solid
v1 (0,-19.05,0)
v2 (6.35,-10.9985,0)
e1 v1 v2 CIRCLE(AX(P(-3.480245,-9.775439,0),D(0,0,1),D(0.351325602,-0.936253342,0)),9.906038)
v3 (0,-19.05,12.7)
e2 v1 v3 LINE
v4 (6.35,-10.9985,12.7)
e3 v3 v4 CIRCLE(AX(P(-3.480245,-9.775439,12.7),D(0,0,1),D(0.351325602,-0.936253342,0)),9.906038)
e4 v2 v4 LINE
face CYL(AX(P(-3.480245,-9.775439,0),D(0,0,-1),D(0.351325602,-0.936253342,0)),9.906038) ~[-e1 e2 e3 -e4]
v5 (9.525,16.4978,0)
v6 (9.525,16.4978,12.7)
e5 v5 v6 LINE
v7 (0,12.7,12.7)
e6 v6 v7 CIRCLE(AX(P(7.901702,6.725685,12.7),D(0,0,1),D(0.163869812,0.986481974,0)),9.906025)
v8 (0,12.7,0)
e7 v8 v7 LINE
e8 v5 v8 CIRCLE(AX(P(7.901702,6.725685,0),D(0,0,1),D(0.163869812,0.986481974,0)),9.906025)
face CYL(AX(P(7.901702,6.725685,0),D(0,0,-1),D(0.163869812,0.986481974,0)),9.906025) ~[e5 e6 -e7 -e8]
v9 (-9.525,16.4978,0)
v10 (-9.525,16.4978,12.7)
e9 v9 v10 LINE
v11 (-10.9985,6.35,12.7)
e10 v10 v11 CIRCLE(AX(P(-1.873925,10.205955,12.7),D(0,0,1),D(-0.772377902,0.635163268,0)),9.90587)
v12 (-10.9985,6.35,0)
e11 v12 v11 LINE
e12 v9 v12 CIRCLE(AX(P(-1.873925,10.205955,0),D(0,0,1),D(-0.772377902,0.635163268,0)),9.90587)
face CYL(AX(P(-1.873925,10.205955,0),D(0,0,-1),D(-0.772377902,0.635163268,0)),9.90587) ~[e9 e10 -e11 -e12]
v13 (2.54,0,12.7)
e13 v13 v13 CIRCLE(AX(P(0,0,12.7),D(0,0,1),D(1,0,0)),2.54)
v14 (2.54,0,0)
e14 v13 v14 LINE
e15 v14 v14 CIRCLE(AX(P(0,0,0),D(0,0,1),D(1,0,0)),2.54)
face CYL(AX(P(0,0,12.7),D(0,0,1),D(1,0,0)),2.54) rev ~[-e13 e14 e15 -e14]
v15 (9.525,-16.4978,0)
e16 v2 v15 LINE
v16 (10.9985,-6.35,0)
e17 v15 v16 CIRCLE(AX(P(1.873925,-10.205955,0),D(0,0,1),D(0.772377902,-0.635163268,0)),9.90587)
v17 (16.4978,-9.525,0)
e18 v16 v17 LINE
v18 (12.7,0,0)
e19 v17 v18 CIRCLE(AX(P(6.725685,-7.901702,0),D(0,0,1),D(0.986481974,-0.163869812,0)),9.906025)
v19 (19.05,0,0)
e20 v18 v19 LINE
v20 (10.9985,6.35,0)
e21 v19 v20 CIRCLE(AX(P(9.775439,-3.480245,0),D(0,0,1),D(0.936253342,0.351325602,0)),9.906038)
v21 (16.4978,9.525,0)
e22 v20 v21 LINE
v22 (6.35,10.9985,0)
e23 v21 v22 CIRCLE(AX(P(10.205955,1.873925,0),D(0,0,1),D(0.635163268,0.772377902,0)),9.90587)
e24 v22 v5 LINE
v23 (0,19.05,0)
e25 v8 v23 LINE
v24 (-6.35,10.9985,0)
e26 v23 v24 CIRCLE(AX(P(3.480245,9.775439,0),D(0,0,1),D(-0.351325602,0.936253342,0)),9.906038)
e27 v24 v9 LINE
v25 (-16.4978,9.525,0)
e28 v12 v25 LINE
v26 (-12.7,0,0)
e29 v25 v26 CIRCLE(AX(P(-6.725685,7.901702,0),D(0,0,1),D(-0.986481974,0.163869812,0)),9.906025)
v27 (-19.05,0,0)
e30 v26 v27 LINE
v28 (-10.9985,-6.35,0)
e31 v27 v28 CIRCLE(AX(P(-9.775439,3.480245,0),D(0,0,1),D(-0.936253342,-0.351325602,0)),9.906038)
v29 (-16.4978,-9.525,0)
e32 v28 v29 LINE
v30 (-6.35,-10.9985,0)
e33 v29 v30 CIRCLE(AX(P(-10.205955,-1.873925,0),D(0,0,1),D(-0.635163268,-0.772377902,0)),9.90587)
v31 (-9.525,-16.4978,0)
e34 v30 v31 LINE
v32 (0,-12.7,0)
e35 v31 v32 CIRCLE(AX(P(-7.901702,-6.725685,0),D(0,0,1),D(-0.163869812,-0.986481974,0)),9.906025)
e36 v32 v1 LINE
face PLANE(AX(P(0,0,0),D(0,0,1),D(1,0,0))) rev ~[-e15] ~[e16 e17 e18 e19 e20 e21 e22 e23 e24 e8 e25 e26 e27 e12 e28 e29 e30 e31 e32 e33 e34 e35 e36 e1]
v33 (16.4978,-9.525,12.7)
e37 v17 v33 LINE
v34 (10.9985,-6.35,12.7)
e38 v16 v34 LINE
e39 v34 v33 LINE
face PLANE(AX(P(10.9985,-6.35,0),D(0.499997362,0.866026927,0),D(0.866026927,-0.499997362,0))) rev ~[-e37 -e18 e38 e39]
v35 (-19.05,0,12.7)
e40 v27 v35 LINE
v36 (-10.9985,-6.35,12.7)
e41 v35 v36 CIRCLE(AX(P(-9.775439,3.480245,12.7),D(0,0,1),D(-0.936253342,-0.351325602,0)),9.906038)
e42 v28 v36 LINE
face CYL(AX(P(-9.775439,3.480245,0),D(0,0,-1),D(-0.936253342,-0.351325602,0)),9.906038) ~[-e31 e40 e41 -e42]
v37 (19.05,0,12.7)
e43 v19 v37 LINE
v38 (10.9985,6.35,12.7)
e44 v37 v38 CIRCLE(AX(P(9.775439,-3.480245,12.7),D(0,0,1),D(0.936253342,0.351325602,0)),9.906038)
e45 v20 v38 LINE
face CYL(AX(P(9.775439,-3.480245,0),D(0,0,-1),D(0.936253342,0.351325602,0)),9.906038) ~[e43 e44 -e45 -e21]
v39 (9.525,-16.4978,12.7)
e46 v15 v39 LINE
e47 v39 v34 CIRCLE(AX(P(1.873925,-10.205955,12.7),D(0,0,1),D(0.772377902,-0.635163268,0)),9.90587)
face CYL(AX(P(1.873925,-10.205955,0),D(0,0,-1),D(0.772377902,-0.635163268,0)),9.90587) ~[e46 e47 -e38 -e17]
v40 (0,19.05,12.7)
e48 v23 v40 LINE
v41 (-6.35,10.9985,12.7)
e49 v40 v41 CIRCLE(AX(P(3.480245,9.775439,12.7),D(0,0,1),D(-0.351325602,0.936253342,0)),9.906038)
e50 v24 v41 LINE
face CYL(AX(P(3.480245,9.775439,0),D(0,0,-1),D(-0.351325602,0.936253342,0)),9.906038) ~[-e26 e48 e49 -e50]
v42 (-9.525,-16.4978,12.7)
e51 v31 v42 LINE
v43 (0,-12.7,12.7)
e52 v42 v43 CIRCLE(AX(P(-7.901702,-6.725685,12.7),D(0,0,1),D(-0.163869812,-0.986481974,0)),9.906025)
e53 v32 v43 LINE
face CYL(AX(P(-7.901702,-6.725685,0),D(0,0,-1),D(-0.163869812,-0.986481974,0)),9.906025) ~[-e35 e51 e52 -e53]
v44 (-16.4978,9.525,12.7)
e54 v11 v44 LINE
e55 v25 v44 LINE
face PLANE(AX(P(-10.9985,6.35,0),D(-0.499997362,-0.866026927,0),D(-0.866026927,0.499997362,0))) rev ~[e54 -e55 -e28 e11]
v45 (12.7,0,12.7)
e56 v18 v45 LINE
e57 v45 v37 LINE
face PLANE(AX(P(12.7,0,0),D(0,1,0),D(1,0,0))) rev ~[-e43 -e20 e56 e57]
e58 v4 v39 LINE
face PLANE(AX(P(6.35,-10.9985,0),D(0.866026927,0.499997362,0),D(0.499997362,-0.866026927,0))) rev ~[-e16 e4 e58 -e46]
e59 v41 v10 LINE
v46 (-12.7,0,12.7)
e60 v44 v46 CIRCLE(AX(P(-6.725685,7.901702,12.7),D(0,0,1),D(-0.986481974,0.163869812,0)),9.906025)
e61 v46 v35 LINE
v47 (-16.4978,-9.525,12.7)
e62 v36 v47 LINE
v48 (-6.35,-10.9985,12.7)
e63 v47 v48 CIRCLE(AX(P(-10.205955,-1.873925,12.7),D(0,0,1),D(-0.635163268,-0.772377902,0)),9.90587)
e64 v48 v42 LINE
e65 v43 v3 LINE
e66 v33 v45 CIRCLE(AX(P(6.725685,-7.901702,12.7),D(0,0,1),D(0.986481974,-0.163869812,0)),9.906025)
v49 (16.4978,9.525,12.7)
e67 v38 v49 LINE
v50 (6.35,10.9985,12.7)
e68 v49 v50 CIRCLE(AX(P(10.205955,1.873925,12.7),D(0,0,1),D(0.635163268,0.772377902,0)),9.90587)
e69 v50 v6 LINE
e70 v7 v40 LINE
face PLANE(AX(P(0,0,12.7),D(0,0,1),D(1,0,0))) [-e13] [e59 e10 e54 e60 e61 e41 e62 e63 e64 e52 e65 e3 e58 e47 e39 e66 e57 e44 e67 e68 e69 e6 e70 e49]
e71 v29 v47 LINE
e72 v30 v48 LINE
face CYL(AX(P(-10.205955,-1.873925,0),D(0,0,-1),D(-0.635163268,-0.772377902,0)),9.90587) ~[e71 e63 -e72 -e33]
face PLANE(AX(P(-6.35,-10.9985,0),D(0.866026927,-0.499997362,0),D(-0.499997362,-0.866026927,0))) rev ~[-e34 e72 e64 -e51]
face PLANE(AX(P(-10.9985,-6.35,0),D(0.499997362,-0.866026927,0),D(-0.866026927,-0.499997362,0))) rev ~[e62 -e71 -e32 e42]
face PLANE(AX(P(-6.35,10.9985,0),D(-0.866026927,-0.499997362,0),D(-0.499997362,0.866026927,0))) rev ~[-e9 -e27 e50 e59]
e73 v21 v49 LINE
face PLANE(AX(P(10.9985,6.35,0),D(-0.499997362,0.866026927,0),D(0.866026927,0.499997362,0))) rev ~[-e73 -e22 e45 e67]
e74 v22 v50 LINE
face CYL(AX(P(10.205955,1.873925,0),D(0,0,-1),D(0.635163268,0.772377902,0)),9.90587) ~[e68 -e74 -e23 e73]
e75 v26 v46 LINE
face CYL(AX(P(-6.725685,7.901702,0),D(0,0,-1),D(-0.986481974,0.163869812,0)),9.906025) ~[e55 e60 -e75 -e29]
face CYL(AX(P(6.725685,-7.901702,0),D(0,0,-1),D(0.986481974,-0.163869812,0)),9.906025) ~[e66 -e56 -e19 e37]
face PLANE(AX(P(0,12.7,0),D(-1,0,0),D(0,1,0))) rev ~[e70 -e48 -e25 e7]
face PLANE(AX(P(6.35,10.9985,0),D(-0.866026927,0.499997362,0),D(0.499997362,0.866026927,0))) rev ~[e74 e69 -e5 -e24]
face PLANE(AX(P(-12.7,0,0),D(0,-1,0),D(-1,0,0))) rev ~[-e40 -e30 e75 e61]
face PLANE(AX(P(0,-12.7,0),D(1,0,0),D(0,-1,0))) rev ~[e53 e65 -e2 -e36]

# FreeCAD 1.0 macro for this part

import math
import FreeCAD as App
import Part
import Sketcher
Q = App.Units.Quantity

doc = App.newDocument("Part")
body = doc.addObject("PartDesign::Body", "Body")

# Sketch on XY plane
sketch1 = body.newObject("Sketcher::SketchObject", "Sketch")
sketch1.AttachmentSupport = (doc.getObject("XY_Plane"), [""])
sketch1.MapMode = "FlatFace"
sketch1.addGeometry([
    Part.ArcOfCircle(Part.Circle(App.Vector(10.2059, 1.8738, 0), App.Vector(0, 0, 1), 9.906002), math.radians(50.568117), math.radians(112.907863)),  # 0
    Part.LineSegment(App.Vector(6.35, 10.9985, 0), App.Vector(9.525, 16.4978, 0)),  # 1
    Part.ArcOfCircle(Part.Circle(App.Vector(7.9017, 6.7257, 0), App.Vector(0, 0, 1), 9.90601), math.radians(80.568391), math.radians(142.907883)),  # 2
    Part.LineSegment(App.Vector(0, 12.7, 0), App.Vector(0, 19.05, 0)),  # 3
    Part.ArcOfCircle(Part.Circle(App.Vector(3.4802, 9.7755, 0), App.Vector(0, 0, 1), 9.905965), math.radians(110.568298), math.radians(172.908128)),  # 4
    Part.LineSegment(App.Vector(-6.35, 10.9985, 0), App.Vector(-9.525, 16.4978, 0)),  # 5
    Part.ArcOfCircle(Part.Circle(App.Vector(-1.8738, 10.2059, 0), App.Vector(0, 0, 1), 9.906002), math.radians(140.568117), math.radians(202.907863)),  # 6
    Part.LineSegment(App.Vector(-10.9985, 6.35, 0), App.Vector(-16.4978, 9.525, 0)),  # 7
    Part.ArcOfCircle(Part.Circle(App.Vector(-6.7257, 7.9017, 0), App.Vector(0, 0, 1), 9.90601), math.radians(170.568391), math.radians(232.907883)),  # 8
    Part.LineSegment(App.Vector(-12.7, 0, 0), App.Vector(-19.05, 0, 0)),  # 9
    Part.ArcOfCircle(Part.Circle(App.Vector(-9.7755, 3.4802, 0), App.Vector(0, 0, 1), 9.905965), math.radians(-159.431702), math.radians(-97.091872)),  # 10
    Part.LineSegment(App.Vector(-10.9985, -6.35, 0), App.Vector(-16.4978, -9.525, 0)),  # 11
    Part.ArcOfCircle(Part.Circle(App.Vector(-10.2059, -1.8738, 0), App.Vector(0, 0, 1), 9.906002), math.radians(-129.431883), math.radians(-67.092137)),  # 12
    Part.LineSegment(App.Vector(-6.35, -10.9985, 0), App.Vector(-9.525, -16.4978, 0)),  # 13
    Part.ArcOfCircle(Part.Circle(App.Vector(-7.9017, -6.7257, 0), App.Vector(0, 0, 1), 9.90601), math.radians(-99.431609), math.radians(-37.092117)),  # 14
    Part.LineSegment(App.Vector(0, -12.7, 0), App.Vector(0, -19.05, 0)),  # 15
    Part.ArcOfCircle(Part.Circle(App.Vector(-3.4802, -9.7755, 0), App.Vector(0, 0, 1), 9.905965), math.radians(-69.431702), math.radians(-7.091872)),  # 16
    Part.LineSegment(App.Vector(6.35, -10.9985, 0), App.Vector(9.525, -16.4978, 0)),  # 17
    Part.ArcOfCircle(Part.Circle(App.Vector(1.8738, -10.2059, 0), App.Vector(0, 0, 1), 9.906002), math.radians(-39.431883), math.radians(22.907863)),  # 18
    Part.LineSegment(App.Vector(10.9985, -6.35, 0), App.Vector(16.4978, -9.525, 0)),  # 19
    Part.ArcOfCircle(Part.Circle(App.Vector(6.7257, -7.9017, 0), App.Vector(0, 0, 1), 9.90601), math.radians(-9.431609), math.radians(52.907883)),  # 20
    Part.LineSegment(App.Vector(12.7, 0, 0), App.Vector(19.05, 0, 0)),  # 21
    Part.ArcOfCircle(Part.Circle(App.Vector(9.7755, -3.4802, 0), App.Vector(0, 0, 1), 9.905965), math.radians(20.568298), math.radians(82.908128)),  # 22
    Part.LineSegment(App.Vector(10.9985, 6.35, 0), App.Vector(16.4978, 9.525, 0)),  # 23
], False)
sketch1.addConstraint([
    Sketcher.Constraint("Coincident", 0, 2, 1, 1),
    Sketcher.Constraint("Coincident", 1, 2, 2, 1),
    Sketcher.Constraint("Coincident", 2, 2, 3, 1),
    Sketcher.Constraint("Coincident", 3, 2, 4, 1),
    Sketcher.Constraint("Coincident", 4, 2, 5, 1),
    Sketcher.Constraint("Coincident", 5, 2, 6, 1),
    Sketcher.Constraint("Coincident", 6, 2, 7, 1),
    Sketcher.Constraint("Coincident", 7, 2, 8, 1),
    Sketcher.Constraint("Coincident", 8, 2, 9, 1),
    Sketcher.Constraint("Coincident", 9, 2, 10, 1),
    Sketcher.Constraint("Coincident", 10, 2, 11, 1),
    Sketcher.Constraint("Coincident", 11, 2, 12, 1),
    Sketcher.Constraint("Coincident", 12, 2, 13, 1),
    Sketcher.Constraint("Coincident", 13, 2, 14, 1),
    Sketcher.Constraint("Coincident", 14, 2, 15, 1),
    Sketcher.Constraint("Coincident", 15, 2, 16, 1),
    Sketcher.Constraint("Coincident", 16, 2, 17, 1),
    Sketcher.Constraint("Coincident", 17, 2, 18, 1),
    Sketcher.Constraint("Coincident", 18, 2, 19, 1),
    Sketcher.Constraint("Coincident", 19, 2, 20, 1),
    Sketcher.Constraint("Coincident", 20, 2, 21, 1),
    Sketcher.Constraint("Coincident", 21, 2, 22, 1),
    Sketcher.Constraint("Coincident", 22, 2, 23, 1),
    Sketcher.Constraint("Coincident", 23, 2, 0, 1),
    Sketcher.Constraint("Vertical", 3),
    Sketcher.Constraint("Horizontal", 9),
    Sketcher.Constraint("Vertical", 15),
    Sketcher.Constraint("Horizontal", 21),
    Sketcher.Constraint("Equal", 0, 2),
    Sketcher.Constraint("Equal", 2, 4),
    Sketcher.Constraint("Equal", 4, 6),
    Sketcher.Constraint("Equal", 6, 8),
    Sketcher.Constraint("Equal", 8, 10),
    Sketcher.Constraint("Equal", 10, 12),
    Sketcher.Constraint("Equal", 12, 14),
    Sketcher.Constraint("Equal", 14, 16),
    Sketcher.Constraint("Equal", 16, 18),
    Sketcher.Constraint("Equal", 18, 20),
    Sketcher.Constraint("Equal", 20, 22),
    Sketcher.Constraint("Symmetric", 0, 3, 12, 3, -1, 1),
    Sketcher.Constraint("Symmetric", 2, 3, 14, 3, -1, 1),
    Sketcher.Constraint("Symmetric", 4, 3, 16, 3, -1, 1),
    Sketcher.Constraint("Symmetric", 6, 3, 18, 3, -1, 1),
    Sketcher.Constraint("Symmetric", 8, 3, 20, 3, -1, 1),
    Sketcher.Constraint("Symmetric", 10, 3, 22, 3, -1, 1),
    Sketcher.Constraint("Symmetric", 0, 2, 4, 2, -2),
    Sketcher.Constraint("Symmetric", 1, 2, 5, 2, -2),
    Sketcher.Constraint("Symmetric", 12, 2, 16, 2, -2),
    Sketcher.Constraint("Symmetric", 13, 2, 17, 2, -2),
    Sketcher.Constraint("Symmetric", 10, 2, 18, 2, -2),
    Sketcher.Constraint("Symmetric", 11, 2, 19, 2, -2),
    Sketcher.Constraint("Symmetric", 8, 2, 20, 2, -2),
    Sketcher.Constraint("Symmetric", 6, 2, 22, 2, -2),
    Sketcher.Constraint("Symmetric", 7, 2, 23, 2, -2),
    Sketcher.Constraint("Symmetric", 2, 2, 14, 2, -1),
    Sketcher.Constraint("Perpendicular", 1, 7),
    Sketcher.Constraint("Equal", 21, 3),
    Sketcher.Constraint("Equal", 5, 7),
    Sketcher.Constraint("Radius", 0, Q("0.39 in")),
    Sketcher.Constraint("Angle", 1, Q("60.0002 deg")),
    Sketcher.Constraint("DistanceY", -1, 1, 3, 2, Q("0.75 in")),
    Sketcher.Constraint("DistanceX", 9, 2, -1, 1, Q("0.75 in")),
    Sketcher.Constraint("DistanceX", 9, 2, 9, 1, Q("0.25 in")),
    Sketcher.Constraint("Distance", 1, Q("0.25 in")),
    Sketcher.Constraint("DistanceX", -1, 1, 0, 2, Q("0.25 in")),
    Sketcher.Constraint("DistanceY", -1, 1, 6, 2, Q("0.25 in")),
    Sketcher.Constraint("DistanceY", -1, 1, 4, 2, Q("0.433 in")),
    Sketcher.Constraint("DistanceX", 10, 2, -1, 1, Q("0.433 in")),
])
pad1 = body.newObject("PartDesign::Pad", "Pad")
pad1.Profile = sketch1
pad1.Length = Q("0.5 in")

# Sketch on XY plane
sketch2 = body.newObject("Sketcher::SketchObject", "Sketch001")
sketch2.AttachmentSupport = (doc.getObject("XY_Plane"), [""])
sketch2.MapMode = "FlatFace"
sketch2.AttachmentOffset = App.Placement(App.Vector(0, 0, 0.5 * 25.4), App.Rotation())
sketch2.addGeometry(Part.Circle(App.Vector(0, 0, 0), App.Vector(0, 0, 1), 2.54), False)
sketch2.addConstraint([
    Sketcher.Constraint("Coincident", 0, 3, -1, 1),
    Sketcher.Constraint("Diameter", 0, Q("0.2 in")),
])
pocket1 = body.newObject("PartDesign::Pocket", "Pocket")
pocket1.Profile = sketch2
pocket1.Length = Q("0.5 in")

doc.recompute()
